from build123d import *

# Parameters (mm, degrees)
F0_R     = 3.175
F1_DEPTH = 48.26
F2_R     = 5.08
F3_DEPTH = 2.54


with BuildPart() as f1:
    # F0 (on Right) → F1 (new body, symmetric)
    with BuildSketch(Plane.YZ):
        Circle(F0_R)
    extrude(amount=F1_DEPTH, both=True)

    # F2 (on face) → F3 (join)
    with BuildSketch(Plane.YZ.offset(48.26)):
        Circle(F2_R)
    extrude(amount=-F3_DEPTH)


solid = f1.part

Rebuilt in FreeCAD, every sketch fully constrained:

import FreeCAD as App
import Part
import Sketcher

V = App.Vector
Q = App.Units.Quantity

doc = App.newDocument("Part")
body = doc.addObject("PartDesign::Body", "Body")

# Sketch on YZ plane
sketch1 = body.newObject("Sketcher::SketchObject", "Sketch")
sketch1.AttachmentSupport = (doc.getObject("YZ_Plane"), [""])
sketch1.MapMode = "FlatFace"
sketch1.addGeometry(Part.Circle(V(0, 0, 0), V(0, 0, 1), 3.175), False)
sketch1.addConstraint(Sketcher.Constraint("Coincident", 0, 3, -1, 1))
sketch1.addConstraint(Sketcher.Constraint("Diameter", 0, Q("0.25 in")))
pad1 = body.newObject("PartDesign::Pad", "Pad")
pad1.Profile = sketch1
pad1.Length = Q("3.8 in")
pad1.Midplane = True

# Sketch on YZ plane
sketch2 = body.newObject("Sketcher::SketchObject", "Sketch001")
sketch2.AttachmentSupport = (doc.getObject("YZ_Plane"), [""])
sketch2.MapMode = "FlatFace"
sketch2.AttachmentOffset = App.Placement(V(0, 0, 1.9 * 25.4), App.Rotation())
sketch2.addGeometry(Part.Circle(V(0, 0, 0), V(0, 0, 1), 5.08), False)
sketch2.addConstraint(Sketcher.Constraint("Coincident", 0, 3, -1, 1))
sketch2.addConstraint(Sketcher.Constraint("Diameter", 0, Q("0.4 in")))
pad2 = body.newObject("PartDesign::Pad", "Pad001")
pad2.Profile = sketch2
pad2.Length = Q("0.1 in")
pad2.Reversed = True

doc.recompute()
